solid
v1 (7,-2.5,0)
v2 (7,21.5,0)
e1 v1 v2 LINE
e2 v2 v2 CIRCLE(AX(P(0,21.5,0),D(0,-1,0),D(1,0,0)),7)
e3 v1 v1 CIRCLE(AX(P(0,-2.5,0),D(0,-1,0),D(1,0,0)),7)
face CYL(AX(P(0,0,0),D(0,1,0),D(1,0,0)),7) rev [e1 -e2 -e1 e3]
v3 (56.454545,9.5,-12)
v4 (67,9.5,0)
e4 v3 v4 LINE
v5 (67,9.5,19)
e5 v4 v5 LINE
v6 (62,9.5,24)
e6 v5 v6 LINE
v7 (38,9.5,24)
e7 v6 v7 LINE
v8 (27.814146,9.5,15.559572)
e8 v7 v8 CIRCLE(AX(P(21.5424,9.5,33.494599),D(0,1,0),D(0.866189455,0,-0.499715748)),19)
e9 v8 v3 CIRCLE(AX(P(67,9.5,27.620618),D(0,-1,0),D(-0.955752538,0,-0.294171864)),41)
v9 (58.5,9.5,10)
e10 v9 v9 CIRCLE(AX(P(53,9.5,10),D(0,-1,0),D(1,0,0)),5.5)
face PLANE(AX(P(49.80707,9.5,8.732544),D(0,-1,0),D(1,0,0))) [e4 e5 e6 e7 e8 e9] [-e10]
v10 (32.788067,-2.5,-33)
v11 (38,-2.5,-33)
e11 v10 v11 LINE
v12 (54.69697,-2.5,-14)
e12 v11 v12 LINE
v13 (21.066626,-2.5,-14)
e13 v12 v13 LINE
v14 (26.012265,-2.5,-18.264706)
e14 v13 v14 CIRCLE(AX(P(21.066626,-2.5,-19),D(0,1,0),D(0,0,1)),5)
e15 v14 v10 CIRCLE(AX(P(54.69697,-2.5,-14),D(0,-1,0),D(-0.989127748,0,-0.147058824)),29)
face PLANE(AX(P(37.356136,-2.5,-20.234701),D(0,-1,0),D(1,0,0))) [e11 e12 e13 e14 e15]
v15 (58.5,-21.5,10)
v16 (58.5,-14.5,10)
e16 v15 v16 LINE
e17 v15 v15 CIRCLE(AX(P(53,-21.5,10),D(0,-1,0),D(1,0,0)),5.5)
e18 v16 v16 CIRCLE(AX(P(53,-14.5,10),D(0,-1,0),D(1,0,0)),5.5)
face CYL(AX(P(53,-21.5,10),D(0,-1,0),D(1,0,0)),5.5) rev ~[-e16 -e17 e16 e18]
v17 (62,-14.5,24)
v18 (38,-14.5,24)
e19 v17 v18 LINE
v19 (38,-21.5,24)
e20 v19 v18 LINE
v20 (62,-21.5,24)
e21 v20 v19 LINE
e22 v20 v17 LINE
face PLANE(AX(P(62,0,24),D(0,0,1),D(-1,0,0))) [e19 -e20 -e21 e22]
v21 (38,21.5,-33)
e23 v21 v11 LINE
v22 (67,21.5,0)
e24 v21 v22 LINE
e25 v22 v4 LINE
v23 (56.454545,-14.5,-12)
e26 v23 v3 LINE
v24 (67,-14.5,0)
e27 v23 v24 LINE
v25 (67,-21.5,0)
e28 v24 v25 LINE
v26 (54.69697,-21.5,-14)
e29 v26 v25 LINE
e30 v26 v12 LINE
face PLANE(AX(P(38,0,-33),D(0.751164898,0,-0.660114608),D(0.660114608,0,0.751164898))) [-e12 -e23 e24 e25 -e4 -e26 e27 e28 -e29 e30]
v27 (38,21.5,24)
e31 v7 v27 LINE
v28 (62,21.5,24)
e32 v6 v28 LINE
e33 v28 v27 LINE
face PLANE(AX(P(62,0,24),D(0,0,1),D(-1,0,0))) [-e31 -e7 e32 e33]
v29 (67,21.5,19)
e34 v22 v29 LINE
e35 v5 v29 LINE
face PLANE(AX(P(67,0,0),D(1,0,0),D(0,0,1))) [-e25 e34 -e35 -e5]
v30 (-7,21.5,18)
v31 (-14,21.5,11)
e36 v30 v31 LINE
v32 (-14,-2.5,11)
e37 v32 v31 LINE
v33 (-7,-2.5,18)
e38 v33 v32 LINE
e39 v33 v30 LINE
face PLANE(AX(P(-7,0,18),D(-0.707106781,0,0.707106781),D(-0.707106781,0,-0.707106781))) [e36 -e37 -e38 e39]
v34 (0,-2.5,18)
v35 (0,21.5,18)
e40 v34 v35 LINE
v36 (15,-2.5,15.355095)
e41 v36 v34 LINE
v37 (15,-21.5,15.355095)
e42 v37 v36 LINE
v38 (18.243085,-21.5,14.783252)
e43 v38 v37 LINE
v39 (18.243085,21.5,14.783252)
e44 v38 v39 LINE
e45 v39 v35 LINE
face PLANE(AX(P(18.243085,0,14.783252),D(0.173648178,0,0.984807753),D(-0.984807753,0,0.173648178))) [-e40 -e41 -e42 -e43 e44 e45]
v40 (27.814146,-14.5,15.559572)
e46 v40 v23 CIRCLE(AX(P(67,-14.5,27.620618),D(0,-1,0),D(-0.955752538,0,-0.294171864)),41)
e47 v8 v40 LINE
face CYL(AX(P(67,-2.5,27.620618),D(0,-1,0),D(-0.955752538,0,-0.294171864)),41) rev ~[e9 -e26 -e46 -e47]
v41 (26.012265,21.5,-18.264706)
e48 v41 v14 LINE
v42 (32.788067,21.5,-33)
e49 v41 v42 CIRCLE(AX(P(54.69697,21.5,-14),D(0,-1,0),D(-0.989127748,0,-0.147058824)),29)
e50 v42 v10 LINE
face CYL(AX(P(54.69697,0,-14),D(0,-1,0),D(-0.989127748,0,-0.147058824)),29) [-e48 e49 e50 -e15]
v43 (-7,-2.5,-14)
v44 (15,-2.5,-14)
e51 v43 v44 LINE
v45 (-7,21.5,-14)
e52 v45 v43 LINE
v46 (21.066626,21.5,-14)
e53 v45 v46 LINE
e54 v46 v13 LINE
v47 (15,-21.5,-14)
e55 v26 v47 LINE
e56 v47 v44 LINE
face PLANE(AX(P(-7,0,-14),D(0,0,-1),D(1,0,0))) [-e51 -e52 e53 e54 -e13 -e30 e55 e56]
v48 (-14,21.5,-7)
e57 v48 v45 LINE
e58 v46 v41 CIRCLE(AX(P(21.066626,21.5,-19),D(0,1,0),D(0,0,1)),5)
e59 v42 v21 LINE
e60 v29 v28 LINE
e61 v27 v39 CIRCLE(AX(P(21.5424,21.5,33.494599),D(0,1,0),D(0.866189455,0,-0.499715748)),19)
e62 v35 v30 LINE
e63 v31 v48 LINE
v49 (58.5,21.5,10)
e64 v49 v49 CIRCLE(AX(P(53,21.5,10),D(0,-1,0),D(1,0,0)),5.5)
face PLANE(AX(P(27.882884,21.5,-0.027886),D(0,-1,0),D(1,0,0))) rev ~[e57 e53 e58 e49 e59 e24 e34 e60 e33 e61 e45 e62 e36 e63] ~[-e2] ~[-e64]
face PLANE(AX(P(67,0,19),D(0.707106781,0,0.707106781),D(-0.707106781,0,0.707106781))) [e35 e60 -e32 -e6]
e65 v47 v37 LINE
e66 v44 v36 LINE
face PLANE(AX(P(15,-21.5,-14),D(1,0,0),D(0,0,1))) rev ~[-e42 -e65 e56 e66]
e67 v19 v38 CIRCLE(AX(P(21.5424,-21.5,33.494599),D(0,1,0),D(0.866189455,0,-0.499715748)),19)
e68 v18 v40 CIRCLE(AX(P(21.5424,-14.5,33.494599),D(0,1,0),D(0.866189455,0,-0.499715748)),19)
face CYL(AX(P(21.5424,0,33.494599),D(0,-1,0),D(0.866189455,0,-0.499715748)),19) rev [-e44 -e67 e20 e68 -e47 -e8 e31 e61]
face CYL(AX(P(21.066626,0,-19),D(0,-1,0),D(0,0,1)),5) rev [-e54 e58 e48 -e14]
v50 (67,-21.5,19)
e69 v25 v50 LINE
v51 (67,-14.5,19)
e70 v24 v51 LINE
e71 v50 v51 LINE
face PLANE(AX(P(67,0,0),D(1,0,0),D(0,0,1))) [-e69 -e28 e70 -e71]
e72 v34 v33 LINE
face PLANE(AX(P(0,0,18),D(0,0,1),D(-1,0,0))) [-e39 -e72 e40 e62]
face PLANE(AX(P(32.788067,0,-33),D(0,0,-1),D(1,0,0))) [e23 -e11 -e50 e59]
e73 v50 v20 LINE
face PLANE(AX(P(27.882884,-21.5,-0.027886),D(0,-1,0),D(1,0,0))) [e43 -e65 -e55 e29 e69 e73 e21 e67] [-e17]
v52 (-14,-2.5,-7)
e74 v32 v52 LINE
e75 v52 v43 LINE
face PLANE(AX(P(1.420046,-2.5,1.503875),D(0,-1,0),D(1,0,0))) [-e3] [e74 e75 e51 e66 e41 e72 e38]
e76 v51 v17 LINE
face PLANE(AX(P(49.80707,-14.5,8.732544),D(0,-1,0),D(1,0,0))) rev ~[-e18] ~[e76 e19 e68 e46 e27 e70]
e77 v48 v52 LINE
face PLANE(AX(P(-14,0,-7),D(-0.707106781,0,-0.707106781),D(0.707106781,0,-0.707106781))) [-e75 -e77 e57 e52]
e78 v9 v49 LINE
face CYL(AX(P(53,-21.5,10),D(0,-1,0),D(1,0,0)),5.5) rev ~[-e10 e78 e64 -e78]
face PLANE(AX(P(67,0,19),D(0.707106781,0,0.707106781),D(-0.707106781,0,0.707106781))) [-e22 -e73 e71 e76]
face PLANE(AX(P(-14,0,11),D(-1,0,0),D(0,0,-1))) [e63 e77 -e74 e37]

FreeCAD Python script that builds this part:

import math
import FreeCAD as App
import Part
import Sketcher
from FreeCAD import Vector
Q = App.Units.Quantity


def add_polygon(sketch, points):
    """Adds a closed chain of lines whose ends are joined by coincident constraints."""
    first, n = sketch.GeometryCount, len(points)
    for a, b in zip(points, points[1:] + points[:1]):
        sketch.addGeometry(Part.LineSegment(App.Vector(*a, 0), App.Vector(*b, 0)), False)
    for i in range(n):
        sketch.addConstraint(Sketcher.Constraint("Coincident", first + i, 2, first + (i + 1) % n, 1))

doc = App.newDocument("Part")
params = doc.addObject("Spreadsheet::Sheet", "Params")
for row, (alias, value) in enumerate([
    ("sketch1_diameter", "14 mm"),
    ("sketch1_radius", "5 mm"),
    ("sketch1_radius2", "29 mm"),
    ("sketch1_radius3", "19 mm"),
    ("sketch1_width", "24 mm"),
    ("pad1_length", "43 mm"),
    ("sketch2_diameter", "11 mm"),
    ("sketch3_diameter", "14 mm"),
    ("sketch3_radius", "5 mm"),
    ("sketch3_radius2", "29 mm"),
    ("sketch3_width", "7 mm"),
    ("sketch3_width2", "22 mm"),
    ("pocket2_length", "19 mm"),
    ("sketch4_diameter", "11 mm"),
    ("sketch4_radius", "19 mm"),
    ("sketch4_radius2", "41 mm"),
    ("sketch4_width", "24 mm"),
    ("sketch4_height", "19 mm"),
    ("pocket3_length", "24 mm"),
], start=1):
    params.set(f"A{row}", alias)
    params.set(f"B{row}", "=" + value)
    params.setAlias(f"B{row}", alias)

body = doc.addObject("PartDesign::Body", "Body")

sketch1 = body.newObject("Sketcher::SketchObject", "Sketch")
sketch1.AttachmentSupport = (doc.getObject("XZ_Plane"), [""])
sketch1.MapMode = "FlatFace"
sketch1.addGeometry(Part.LineSegment(Vector(-14, 11, 0), Vector(-14, -7, 0)), False)
sketch1.addGeometry(Part.LineSegment(Vector(-14, -7, 0), Vector(-7, -14, 0)), False)
sketch1.addGeometry(Part.LineSegment(Vector(-7, -14, 0), Vector(21.066626, -14, 0)), False)
sketch1.addGeometry(Part.ArcOfCircle(Part.Circle(Vector(21.066626, -19, 0), Vector(0, 0, 1), 5), math.radians(8.456519), math.radians(90)), False)
sketch1.addGeometry(Part.ArcOfCircle(Part.Circle(Vector(54.69697, -14, 0), Vector(0, 0, 1), 29), math.radians(-171.543481), math.radians(-139.067275)), False)
sketch1.addGeometry(Part.LineSegment(Vector(32.788067, -33, 0), Vector(38, -33, 0)), False)
sketch1.addGeometry(Part.LineSegment(Vector(38, -33, 0), Vector(67, 0, 0)), False)
sketch1.addGeometry(Part.LineSegment(Vector(67, 0, 0), Vector(67, 19, 0)), False)
sketch1.addGeometry(Part.LineSegment(Vector(67, 19, 0), Vector(62, 24, 0)), False)
sketch1.addGeometry(Part.LineSegment(Vector(62, 24, 0), Vector(38, 24, 0)), False)
sketch1.addGeometry(Part.ArcOfCircle(Part.Circle(Vector(21.5424, 33.494599, 0), Vector(0, 0, 1), 19), math.radians(-100), math.radians(-29.981196)), False)
sketch1.addGeometry(Part.LineSegment(Vector(18.243085, 14.783252, 0), Vector(0, 18, 0)), False)
sketch1.addGeometry(Part.LineSegment(Vector(0, 18, 0), Vector(-7, 18, 0)), False)
sketch1.addGeometry(Part.LineSegment(Vector(-7, 18, 0), Vector(-14, 11, 0)), False)
sketch1.addGeometry(Part.Circle(Vector(0, 0, 0), Vector(0, 0, 1), 7), False)
sketch1.addConstraint(Sketcher.Constraint("Coincident", 0, 2, 1, 1))
sketch1.addConstraint(Sketcher.Constraint("Coincident", 1, 2, 2, 1))
sketch1.addConstraint(Sketcher.Constraint("Tangent", 2, 2, 3, 2))
sketch1.addConstraint(Sketcher.Constraint("Tangent", 3, 1, 4, 1))
sketch1.addConstraint(Sketcher.Constraint("Coincident", 4, 2, 5, 1))
sketch1.addConstraint(Sketcher.Constraint("Coincident", 5, 2, 6, 1))
sketch1.addConstraint(Sketcher.Constraint("Coincident", 6, 2, 7, 1))
sketch1.addConstraint(Sketcher.Constraint("Coincident", 7, 2, 8, 1))
sketch1.addConstraint(Sketcher.Constraint("Coincident", 8, 2, 9, 1))
sketch1.addConstraint(Sketcher.Constraint("Coincident", 9, 2, 10, 2))
sketch1.addConstraint(Sketcher.Constraint("Tangent", 10, 1, 11, 1))
sketch1.addConstraint(Sketcher.Constraint("Coincident", 11, 2, 12, 1))
sketch1.addConstraint(Sketcher.Constraint("Coincident", 12, 2, 13, 1))
sketch1.addConstraint(Sketcher.Constraint("Coincident", 13, 2, 0, 1))
sketch1.addConstraint(Sketcher.Constraint("Vertical", 0))
sketch1.addConstraint(Sketcher.Constraint("Horizontal", 2))
sketch1.addConstraint(Sketcher.Constraint("Horizontal", 5))
sketch1.addConstraint(Sketcher.Constraint("Vertical", 7))
sketch1.addConstraint(Sketcher.Constraint("Horizontal", 9))
sketch1.addConstraint(Sketcher.Constraint("Horizontal", 12))
sketch1.addConstraint(Sketcher.Constraint("Coincident", 14, 3, -1, 1))
sketch1.addConstraint(Sketcher.Constraint("PointOnObject", 6, 2, -1))
sketch1.addConstraint(Sketcher.Constraint("PointOnObject", 11, 2, -2))
sketch1.addConstraint(Sketcher.Constraint("Parallel", 1, 8))
sketch1.addConstraint(Sketcher.Constraint("Perpendicular", 8, 13))
sketch1.addConstraint(Sketcher.Constraint("Horizontal", 4, 3, 1, 2))
sketch1.addConstraint(Sketcher.Constraint("Vertical", 5, 2, 9, 2))
sketch1.addConstraint(Sketcher.Constraint("Vertical", 1, 2, 12, 2))
sketch1.addConstraint(Sketcher.Constraint("Equal", 1, 13))
sketch1.addConstraint(Sketcher.Constraint("Diameter", 14, Q("14 mm")))
sketch1.addConstraint(Sketcher.Constraint("Radius", 3, Q("5 mm")))
sketch1.addConstraint(Sketcher.Constraint("Radius", 4, Q("29 mm")))
sketch1.addConstraint(Sketcher.Constraint("Radius", 10, Q("19 mm")))
sketch1.addConstraint(Sketcher.Constraint("DistanceX", 9, 2, 9, 1, Q("24 mm")))
sketch1.addConstraint(Sketcher.Constraint("DistanceX", 12, 2, 12, 1, Q("7 mm")))
sketch1.addConstraint(Sketcher.Constraint("DistanceY", 0, 2, 0, 1, Q("18 mm")))
sketch1.addConstraint(Sketcher.Constraint("DistanceY", 7, 1, 7, 2, Q("19 mm")))
sketch1.addConstraint(Sketcher.Constraint("Angle", 11, Q("170 deg")))
sketch1.addConstraint(Sketcher.Constraint("DistanceY", 3, 3, -1, 1, Q("19 mm")))
sketch1.addConstraint(Sketcher.Constraint("DistanceX", 0, 2, -1, 1, Q("14 mm")))
sketch1.addConstraint(Sketcher.Constraint("DistanceY", 4, 2, -1, 1, Q("33 mm")))
sketch1.addConstraint(Sketcher.Constraint("DistanceX", -1, 1, 5, 2, Q("38 mm")))
sketch1.addConstraint(Sketcher.Constraint("DistanceX", -1, 1, 6, 2, Q("67 mm")))
sketch1.addConstraint(Sketcher.Constraint("DistanceX", 2, 1, 2, 2, Q("28.066626 mm")))
sketch1.setExpression("Constraints[29]", "Params.sketch1_diameter")
sketch1.setExpression("Constraints[30]", "Params.sketch1_radius")
sketch1.setExpression("Constraints[31]", "Params.sketch1_radius2")
sketch1.setExpression("Constraints[32]", "Params.sketch1_radius3")
sketch1.setExpression("Constraints[33]", "Params.sketch1_width")
pad1 = body.newObject("PartDesign::Pad", "Pad")
pad1.Profile = sketch1
pad1.setExpression("Length", "Params.pad1_length")
pad1.Midplane = True

sketch2 = body.newObject("Sketcher::SketchObject", "Sketch001")
sketch2.AttachmentSupport = (doc.getObject("XZ_Plane"), [""])
sketch2.MapMode = "FlatFace"
sketch2.AttachmentOffset = App.Placement(Vector(0, 0, 21.5), App.Rotation())
sketch2.addGeometry(Part.Circle(Vector(53, 10, 0), Vector(0, 0, 1), 5.5), False)
sketch2.addConstraint(Sketcher.Constraint("Diameter", 0, Q("11 mm")))
sketch2.addConstraint(Sketcher.Constraint("DistanceX", -1, 1, 0, 3, Q("53 mm")))
sketch2.addConstraint(Sketcher.Constraint("DistanceY", -1, 1, 0, 3, Q("10 mm")))
sketch2.setExpression("Constraints[0]", "Params.sketch2_diameter")
pocket1 = body.newObject("PartDesign::Pocket", "Pocket")
pocket1.Profile = sketch2
pocket1.Type = "ThroughAll"

sketch3 = body.newObject("Sketcher::SketchObject", "Sketch002")
sketch3.AttachmentSupport = (doc.getObject("XZ_Plane"), [""])
sketch3.MapMode = "FlatFace"
sketch3.AttachmentOffset = App.Placement(Vector(0, 0, 21.5), App.Rotation())
add_polygon(sketch3, [(15, -14), (15, 15.355095), (0, 18), (-7, 18), (-14, 11), (-14, -7), (-7, -14)])
sketch3.addGeometry(Part.Circle(Vector(0, 0, 0), Vector(0, 0, 1), 7), False)
sketch3.addGeometry(Part.LineSegment(Vector(54.69697, -14, 0), Vector(21.066626, -14, 0)), False)
sketch3.addGeometry(Part.ArcOfCircle(Part.Circle(Vector(21.066626, -19, 0), Vector(0, 0, 1), 5), math.radians(8.456519), math.radians(90)), False)
sketch3.addGeometry(Part.ArcOfCircle(Part.Circle(Vector(54.69697, -14, 0), Vector(0, 0, 1), 29), math.radians(-171.543481), math.radians(-139.067275)), False)
sketch3.addGeometry(Part.LineSegment(Vector(32.788067, -33, 0), Vector(38, -33, 0)), False)
sketch3.addGeometry(Part.LineSegment(Vector(38, -33, 0), Vector(54.69697, -14, 0)), False)
sketch3.addConstraint(Sketcher.Constraint("Tangent", 8, 2, 9, 2))
sketch3.addConstraint(Sketcher.Constraint("Tangent", 9, 1, 10, 1))
sketch3.addConstraint(Sketcher.Constraint("Coincident", 10, 2, 11, 1))
sketch3.addConstraint(Sketcher.Constraint("Coincident", 11, 2, 12, 1))
sketch3.addConstraint(Sketcher.Constraint("Coincident", 12, 2, 8, 1))
sketch3.addConstraint(Sketcher.Constraint("Vertical", 0))
sketch3.addConstraint(Sketcher.Constraint("Horizontal", 2))
sketch3.addConstraint(Sketcher.Constraint("Vertical", 4))
sketch3.addConstraint(Sketcher.Constraint("Horizontal", 6))
sketch3.addConstraint(Sketcher.Constraint("Horizontal", 8))
sketch3.addConstraint(Sketcher.Constraint("Horizontal", 11))
sketch3.addConstraint(Sketcher.Constraint("Coincident", 7, 3, -1, 1))
sketch3.addConstraint(Sketcher.Constraint("Coincident", 12, 2, 10, 3))
sketch3.addConstraint(Sketcher.Constraint("PointOnObject", 1, 2, -2))
sketch3.addConstraint(Sketcher.Constraint("Perpendicular", 3, 5))
sketch3.addConstraint(Sketcher.Constraint("Horizontal", 10, 3, 5, 2))
sketch3.addConstraint(Sketcher.Constraint("Vertical", 2, 2, 5, 2))
sketch3.addConstraint(Sketcher.Constraint("Equal", 3, 5))
sketch3.addConstraint(Sketcher.Constraint("Diameter", 7, Q("14 mm")))
sketch3.addConstraint(Sketcher.Constraint("Radius", 9, Q("5 mm")))
sketch3.addConstraint(Sketcher.Constraint("Radius", 10, Q("29 mm")))
sketch3.addConstraint(Sketcher.Constraint("DistanceX", 2, 2, 2, 1, Q("7 mm")))
sketch3.addConstraint(Sketcher.Constraint("DistanceX", 6, 1, 6, 2, Q("22 mm")))
sketch3.addConstraint(Sketcher.Constraint("DistanceY", 4, 2, 4, 1, Q("18 mm")))
sketch3.addConstraint(Sketcher.Constraint("Angle", 1, Q("170 deg")))
sketch3.addConstraint(Sketcher.Constraint("DistanceY", 9, 3, -1, 1, Q("19 mm")))
sketch3.addConstraint(Sketcher.Constraint("DistanceY", -1, 1, 1, 2, Q("18 mm")))
sketch3.addConstraint(Sketcher.Constraint("DistanceY", 10, 2, -1, 1, Q("33 mm")))
sketch3.addConstraint(Sketcher.Constraint("DistanceX", -1, 1, 11, 2, Q("38 mm")))
sketch3.addConstraint(Sketcher.Constraint("DistanceX", 11, 1, 11, 2, Q("5.211933 mm")))
sketch3.setExpression("Constraints[25]", "Params.sketch3_diameter")
sketch3.setExpression("Constraints[26]", "Params.sketch3_radius")
sketch3.setExpression("Constraints[27]", "Params.sketch3_radius2")
sketch3.setExpression("Constraints[28]", "Params.sketch3_width")
sketch3.setExpression("Constraints[29]", "Params.sketch3_width2")
pocket2 = body.newObject("PartDesign::Pocket", "Pocket001")
pocket2.Profile = sketch3
pocket2.setExpression("Length", "Params.pocket2_length")

sketch4 = body.newObject("Sketcher::SketchObject", "Sketch003")
sketch4.AttachmentSupport = (doc.getObject("XZ_Plane"), [""])
sketch4.MapMode = "FlatFace"
sketch4.AttachmentOffset = App.Placement(Vector(0, 0, 2.5), App.Rotation())
sketch4.addGeometry(Part.LineSegment(Vector(67, 19, 0), Vector(62, 24, 0)), False)
sketch4.addGeometry(Part.LineSegment(Vector(62, 24, 0), Vector(38, 24, 0)), False)
sketch4.addGeometry(Part.ArcOfCircle(Part.Circle(Vector(21.5424, 33.494599, 0), Vector(0, 0, 1), 19), math.radians(-70.725648), math.radians(-29.981196)), False)
sketch4.addGeometry(Part.ArcOfCircle(Part.Circle(Vector(67, 27.620618, 0), Vector(0, 0, 1), 41), math.radians(-162.892115), math.radians(-104.904353)), False)
sketch4.addGeometry(Part.LineSegment(Vector(56.454545, -12, 0), Vector(67, 0, 0)), False)
sketch4.addGeometry(Part.LineSegment(Vector(67, 0, 0), Vector(67, 19, 0)), False)
sketch4.addGeometry(Part.Circle(Vector(53, 10, 0), Vector(0, 0, 1), 5.5), False)
sketch4.addConstraint(Sketcher.Constraint("Coincident", 0, 2, 1, 1))
sketch4.addConstraint(Sketcher.Constraint("Coincident", 1, 2, 2, 2))
sketch4.addConstraint(Sketcher.Constraint("Coincident", 2, 1, 3, 1))
sketch4.addConstraint(Sketcher.Constraint("Coincident", 3, 2, 4, 1))
sketch4.addConstraint(Sketcher.Constraint("Coincident", 4, 2, 5, 1))
sketch4.addConstraint(Sketcher.Constraint("Coincident", 5, 2, 0, 1))
sketch4.addConstraint(Sketcher.Constraint("Horizontal", 1))
sketch4.addConstraint(Sketcher.Constraint("Vertical", 5))
sketch4.addConstraint(Sketcher.Constraint("PointOnObject", 4, 2, -1))
sketch4.addConstraint(Sketcher.Constraint("Vertical", 3, 3, 4, 2))
sketch4.addConstraint(Sketcher.Constraint("Diameter", 6, Q("11 mm")))
sketch4.addConstraint(Sketcher.Constraint("Radius", 2, Q("19 mm")))
sketch4.addConstraint(Sketcher.Constraint("Radius", 3, Q("41 mm")))
sketch4.addConstraint(Sketcher.Constraint("DistanceX", 1, 2, 1, 1, Q("24 mm")))
sketch4.addConstraint(Sketcher.Constraint("DistanceY", 5, 1, 5, 2, Q("19 mm")))
sketch4.addConstraint(Sketcher.Constraint("Angle", 0, Q("135 deg")))
sketch4.addConstraint(Sketcher.Constraint("DistanceX", -1, 1, 3, 3, Q("67 mm")))
sketch4.addConstraint(Sketcher.Constraint("DistanceX", -1, 1, 6, 3, Q("53 mm")))
sketch4.addConstraint(Sketcher.Constraint("DistanceY", -1, 1, 6, 3, Q("10 mm")))
sketch4.addConstraint(Sketcher.Constraint("DistanceX", -1, 1, 0, 2, Q("62 mm")))
sketch4.addConstraint(Sketcher.Constraint("DistanceY", 3, 2, -1, 1, Q("12 mm")))
sketch4.addConstraint(Sketcher.Constraint("DistanceX", -1, 1, 2, 3, Q("21.5424 mm")))
sketch4.addConstraint(Sketcher.Constraint("DistanceX", 2, 1, 3, 2, Q("28.6404 mm")))
sketch4.setExpression("Constraints[10]", "Params.sketch4_diameter")
sketch4.setExpression("Constraints[11]", "Params.sketch4_radius")
sketch4.setExpression("Constraints[12]", "Params.sketch4_radius2")
sketch4.setExpression("Constraints[13]", "Params.sketch4_width")
sketch4.setExpression("Constraints[14]", "Params.sketch4_height")
pocket3 = body.newObject("PartDesign::Pocket", "Pocket002")
pocket3.Profile = sketch4
pocket3.setExpression("Length", "Params.pocket3_length")
pocket3.Midplane = True

doc.recompute()
